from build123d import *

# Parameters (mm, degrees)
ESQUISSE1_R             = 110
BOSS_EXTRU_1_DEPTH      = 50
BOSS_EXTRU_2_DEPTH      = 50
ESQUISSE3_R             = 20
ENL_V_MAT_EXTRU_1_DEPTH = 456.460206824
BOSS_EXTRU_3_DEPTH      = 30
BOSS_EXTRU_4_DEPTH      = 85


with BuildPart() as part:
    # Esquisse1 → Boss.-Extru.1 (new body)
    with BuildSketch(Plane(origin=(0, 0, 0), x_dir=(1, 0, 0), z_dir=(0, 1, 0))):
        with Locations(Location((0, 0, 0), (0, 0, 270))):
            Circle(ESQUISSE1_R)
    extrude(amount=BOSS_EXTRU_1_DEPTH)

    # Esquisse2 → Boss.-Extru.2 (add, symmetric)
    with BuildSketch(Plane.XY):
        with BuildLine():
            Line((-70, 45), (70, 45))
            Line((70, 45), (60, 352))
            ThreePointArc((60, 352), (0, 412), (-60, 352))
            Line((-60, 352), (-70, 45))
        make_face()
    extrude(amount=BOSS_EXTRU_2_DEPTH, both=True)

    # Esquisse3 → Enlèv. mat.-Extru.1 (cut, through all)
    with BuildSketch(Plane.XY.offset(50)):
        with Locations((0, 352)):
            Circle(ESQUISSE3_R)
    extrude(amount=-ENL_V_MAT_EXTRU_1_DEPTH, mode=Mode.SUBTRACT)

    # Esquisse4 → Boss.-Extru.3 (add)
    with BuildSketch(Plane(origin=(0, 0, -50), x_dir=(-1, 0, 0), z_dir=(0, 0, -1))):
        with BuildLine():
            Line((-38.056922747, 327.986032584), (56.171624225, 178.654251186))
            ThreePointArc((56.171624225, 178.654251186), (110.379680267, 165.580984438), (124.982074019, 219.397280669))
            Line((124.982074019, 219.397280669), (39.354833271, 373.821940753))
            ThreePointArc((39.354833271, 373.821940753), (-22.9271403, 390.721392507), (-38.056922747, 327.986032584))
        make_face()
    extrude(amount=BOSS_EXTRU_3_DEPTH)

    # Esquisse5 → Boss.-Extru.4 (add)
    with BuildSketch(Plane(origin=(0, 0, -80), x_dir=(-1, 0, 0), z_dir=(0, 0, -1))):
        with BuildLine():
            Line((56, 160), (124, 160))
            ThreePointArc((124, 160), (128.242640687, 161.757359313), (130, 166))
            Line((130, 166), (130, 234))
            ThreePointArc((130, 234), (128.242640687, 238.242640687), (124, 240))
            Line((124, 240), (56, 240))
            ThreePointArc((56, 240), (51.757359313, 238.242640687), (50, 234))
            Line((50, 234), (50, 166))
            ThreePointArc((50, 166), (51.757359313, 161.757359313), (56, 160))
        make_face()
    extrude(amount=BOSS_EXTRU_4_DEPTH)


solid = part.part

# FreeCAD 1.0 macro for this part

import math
import FreeCAD as App
import Part
import Sketcher
Q = App.Units.Quantity

doc = App.newDocument("Part")
params = doc.addObject("Spreadsheet::Sheet", "Params")
for row, (alias, value) in enumerate([
    ("sketch1_diameter", "220 mm"),
    ("pad1_length", "50 mm"),
    ("sketch2_radius", "60 mm"),
    ("sketch2_width", "140 mm"),
    ("pad2_length", "100 mm"),
    ("sketch3_diameter", "40 mm"),
    ("sketch4_radius", "40 mm"),
    ("sketch4_radius2", "45 mm"),
    ("pad3_length", "30 mm"),
    ("sketch5_radius", "6 mm"),
    ("sketch5_width", "68 mm"),
    ("pad4_length", "85 mm"),
], start=1):
    params.set(f"A{row}", alias)
    params.set(f"B{row}", "=" + value)
    params.setAlias(f"B{row}", alias)

body = doc.addObject("PartDesign::Body", "Body")

# Sketch on XZ plane
sketch1 = body.newObject("Sketcher::SketchObject", "Sketch")
sketch1.AttachmentSupport = (doc.getObject("XZ_Plane"), [""])
sketch1.MapMode = "FlatFace"
sketch1.addGeometry(Part.Circle(App.Vector(0, 0, 0), App.Vector(0, 0, 1), 110), False)
sketch1.addConstraint(Sketcher.Constraint("Coincident", 0, 3, -1, 1))
sketch1.addConstraint(Sketcher.Constraint("Diameter", 0, Q("220 mm")))
sketch1.setExpression("Constraints[1]", "Params.sketch1_diameter")
pad1 = body.newObject("PartDesign::Pad", "Pad")
pad1.Profile = sketch1
pad1.setExpression("Length", "Params.pad1_length")
pad1.Reversed = True

# Sketch on XY plane
sketch2 = body.newObject("Sketcher::SketchObject", "Sketch001")
sketch2.AttachmentSupport = (doc.getObject("XY_Plane"), [""])
sketch2.MapMode = "FlatFace"
sketch2.addGeometry(Part.LineSegment(App.Vector(-70, 45, 0), App.Vector(70, 45, 0)), False)
sketch2.addGeometry(Part.LineSegment(App.Vector(70, 45, 0), App.Vector(60, 352, 0)), False)
sketch2.addGeometry(Part.ArcOfCircle(Part.Circle(App.Vector(0, 352, 0), App.Vector(0, 0, 1), 60), math.radians(0), math.radians(180)), False)
sketch2.addGeometry(Part.LineSegment(App.Vector(-60, 352, 0), App.Vector(-70, 45, 0)), False)
sketch2.addConstraint(Sketcher.Constraint("Coincident", 0, 2, 1, 1))
sketch2.addConstraint(Sketcher.Constraint("Coincident", 1, 2, 2, 1))
sketch2.addConstraint(Sketcher.Constraint("Coincident", 2, 2, 3, 1))
sketch2.addConstraint(Sketcher.Constraint("Coincident", 3, 2, 0, 1))
sketch2.addConstraint(Sketcher.Constraint("Horizontal", 0))
sketch2.addConstraint(Sketcher.Constraint("Symmetric", 1, 2, 2, 2, -2))
sketch2.addConstraint(Sketcher.Constraint("Horizontal", 2, 3, 1, 2))
sketch2.addConstraint(Sketcher.Constraint("Equal", 1, 3))
sketch2.addConstraint(Sketcher.Constraint("Radius", 2, Q("60 mm")))
sketch2.addConstraint(Sketcher.Constraint("DistanceX", 0, 1, 0, 2, Q("140 mm")))
sketch2.addConstraint(Sketcher.Constraint("DistanceY", -1, 1, 2, 3, Q("352 mm")))
sketch2.addConstraint(Sketcher.Constraint("DistanceY", -1, 1, 0, 2, Q("45 mm")))
sketch2.setExpression("Constraints[8]", "Params.sketch2_radius")
sketch2.setExpression("Constraints[9]", "Params.sketch2_width")
pad2 = body.newObject("PartDesign::Pad", "Pad001")
pad2.Profile = sketch2
pad2.setExpression("Length", "Params.pad2_length")
pad2.Midplane = True

# Sketch on XY plane
sketch3 = body.newObject("Sketcher::SketchObject", "Sketch002")
sketch3.AttachmentSupport = (doc.getObject("XY_Plane"), [""])
sketch3.MapMode = "FlatFace"
sketch3.AttachmentOffset = App.Placement(App.Vector(0, 0, 50), App.Rotation())
sketch3.addGeometry(Part.Circle(App.Vector(0, 352, 0), App.Vector(0, 0, 1), 20), False)
sketch3.addConstraint(Sketcher.Constraint("PointOnObject", 0, 3, -2))
sketch3.addConstraint(Sketcher.Constraint("Diameter", 0, Q("40 mm")))
sketch3.addConstraint(Sketcher.Constraint("DistanceY", -1, 1, 0, 3, Q("352 mm")))
sketch3.setExpression("Constraints[1]", "Params.sketch3_diameter")
pocket1 = body.newObject("PartDesign::Pocket", "Pocket")
pocket1.Profile = sketch3
pocket1.Type = "ThroughAll"

# Sketch on XY plane
sketch4 = body.newObject("Sketcher::SketchObject", "Sketch003")
sketch4.AttachmentSupport = (doc.getObject("XY_Plane"), [""])
sketch4.MapMode = "FlatFace"
sketch4.AttachmentOffset = App.Placement(App.Vector(0, 0, -50), App.Rotation())
sketch4.addGeometry(Part.LineSegment(App.Vector(38, 328, 0), App.Vector(-56, 179, 0)), False)
sketch4.addGeometry(Part.ArcOfCircle(Part.Circle(App.Vector(-90, 200, 0), App.Vector(0, 0, 1), 40), math.radians(151), math.radians(328)), False)
sketch4.addGeometry(Part.LineSegment(App.Vector(-125, 219, 0), App.Vector(-39, 374, 0)), False)
sketch4.addGeometry(Part.ArcOfCircle(Part.Circle(App.Vector(0, 352, 0), App.Vector(0, 0, 1), 45), math.radians(-32), math.radians(151)), False)
sketch4.addConstraint(Sketcher.Constraint("Tangent", 0, 2, 1, 2))
sketch4.addConstraint(Sketcher.Constraint("Tangent", 1, 1, 2, 1))
sketch4.addConstraint(Sketcher.Constraint("Tangent", 2, 2, 3, 2))
sketch4.addConstraint(Sketcher.Constraint("Tangent", 3, 1, 0, 1))
sketch4.addConstraint(Sketcher.Constraint("PointOnObject", 3, 3, -2))
sketch4.addConstraint(Sketcher.Constraint("Radius", 1, Q("40 mm")))
sketch4.addConstraint(Sketcher.Constraint("Radius", 3, Q("45 mm")))
sketch4.addConstraint(Sketcher.Constraint("DistanceX", 1, 3, -1, 1, Q("90 mm")))
sketch4.addConstraint(Sketcher.Constraint("DistanceY", -1, 1, 1, 3, Q("200 mm")))
sketch4.addConstraint(Sketcher.Constraint("DistanceY", -1, 1, 3, 3, Q("352 mm")))
sketch4.setExpression("Constraints[5]", "Params.sketch4_radius")
sketch4.setExpression("Constraints[6]", "Params.sketch4_radius2")
pad3 = body.newObject("PartDesign::Pad", "Pad002")
pad3.Profile = sketch4
pad3.setExpression("Length", "Params.pad3_length")
pad3.Reversed = True

# Sketch on XY plane
sketch5 = body.newObject("Sketcher::SketchObject", "Sketch004")
sketch5.AttachmentSupport = (doc.getObject("XY_Plane"), [""])
sketch5.MapMode = "FlatFace"
sketch5.AttachmentOffset = App.Placement(App.Vector(0, 0, -80), App.Rotation())
sketch5.addGeometry(Part.LineSegment(App.Vector(-56, 160, 0), App.Vector(-124, 160, 0)), False)
sketch5.addGeometry(Part.ArcOfCircle(Part.Circle(App.Vector(-124, 166, 0), App.Vector(0, 0, 1), 6), math.radians(180), math.radians(270)), False)
sketch5.addGeometry(Part.LineSegment(App.Vector(-130, 166, 0), App.Vector(-130, 234, 0)), False)
sketch5.addGeometry(Part.ArcOfCircle(Part.Circle(App.Vector(-124, 234, 0), App.Vector(0, 0, 1), 6), math.radians(90), math.radians(180)), False)
sketch5.addGeometry(Part.LineSegment(App.Vector(-124, 240, 0), App.Vector(-56, 240, 0)), False)
sketch5.addGeometry(Part.ArcOfCircle(Part.Circle(App.Vector(-56, 234, 0), App.Vector(0, 0, 1), 6), math.radians(0), math.radians(90)), False)
sketch5.addGeometry(Part.LineSegment(App.Vector(-50, 234, 0), App.Vector(-50, 166, 0)), False)
sketch5.addGeometry(Part.ArcOfCircle(Part.Circle(App.Vector(-56, 166, 0), App.Vector(0, 0, 1), 6), math.radians(-90), math.radians(0)), False)
sketch5.addConstraint(Sketcher.Constraint("Tangent", 0, 2, 1, 2))
sketch5.addConstraint(Sketcher.Constraint("Tangent", 1, 1, 2, 1))
sketch5.addConstraint(Sketcher.Constraint("Tangent", 2, 2, 3, 2))
sketch5.addConstraint(Sketcher.Constraint("Tangent", 3, 1, 4, 1))
sketch5.addConstraint(Sketcher.Constraint("Tangent", 4, 2, 5, 2))
sketch5.addConstraint(Sketcher.Constraint("Tangent", 5, 1, 6, 1))
sketch5.addConstraint(Sketcher.Constraint("Tangent", 6, 2, 7, 2))
sketch5.addConstraint(Sketcher.Constraint("Tangent", 7, 1, 0, 1))
sketch5.addConstraint(Sketcher.Constraint("Horizontal", 0))
sketch5.addConstraint(Sketcher.Constraint("Vertical", 2))
sketch5.addConstraint(Sketcher.Constraint("Horizontal", 4))
sketch5.addConstraint(Sketcher.Constraint("Vertical", 6))
sketch5.addConstraint(Sketcher.Constraint("Equal", 1, 3))
sketch5.addConstraint(Sketcher.Constraint("Equal", 3, 5))
sketch5.addConstraint(Sketcher.Constraint("Equal", 5, 7))
sketch5.addConstraint(Sketcher.Constraint("Equal", 4, 2))
sketch5.addConstraint(Sketcher.Constraint("Radius", 1, Q("6 mm")))
sketch5.addConstraint(Sketcher.Constraint("DistanceX", 0, 2, 0, 1, Q("68 mm")))
sketch5.addConstraint(Sketcher.Constraint("DistanceX", 1, 3, -1, 1, Q("124 mm")))
sketch5.addConstraint(Sketcher.Constraint("DistanceY", -1, 1, 1, 3, Q("166 mm")))
sketch5.setExpression("Constraints[16]", "Params.sketch5_radius")
sketch5.setExpression("Constraints[17]", "Params.sketch5_width")
pad4 = body.newObject("PartDesign::Pad", "Pad003")
pad4.Profile = sketch5
pad4.setExpression("Length", "Params.pad4_length")
pad4.Reversed = True

doc.recompute()
